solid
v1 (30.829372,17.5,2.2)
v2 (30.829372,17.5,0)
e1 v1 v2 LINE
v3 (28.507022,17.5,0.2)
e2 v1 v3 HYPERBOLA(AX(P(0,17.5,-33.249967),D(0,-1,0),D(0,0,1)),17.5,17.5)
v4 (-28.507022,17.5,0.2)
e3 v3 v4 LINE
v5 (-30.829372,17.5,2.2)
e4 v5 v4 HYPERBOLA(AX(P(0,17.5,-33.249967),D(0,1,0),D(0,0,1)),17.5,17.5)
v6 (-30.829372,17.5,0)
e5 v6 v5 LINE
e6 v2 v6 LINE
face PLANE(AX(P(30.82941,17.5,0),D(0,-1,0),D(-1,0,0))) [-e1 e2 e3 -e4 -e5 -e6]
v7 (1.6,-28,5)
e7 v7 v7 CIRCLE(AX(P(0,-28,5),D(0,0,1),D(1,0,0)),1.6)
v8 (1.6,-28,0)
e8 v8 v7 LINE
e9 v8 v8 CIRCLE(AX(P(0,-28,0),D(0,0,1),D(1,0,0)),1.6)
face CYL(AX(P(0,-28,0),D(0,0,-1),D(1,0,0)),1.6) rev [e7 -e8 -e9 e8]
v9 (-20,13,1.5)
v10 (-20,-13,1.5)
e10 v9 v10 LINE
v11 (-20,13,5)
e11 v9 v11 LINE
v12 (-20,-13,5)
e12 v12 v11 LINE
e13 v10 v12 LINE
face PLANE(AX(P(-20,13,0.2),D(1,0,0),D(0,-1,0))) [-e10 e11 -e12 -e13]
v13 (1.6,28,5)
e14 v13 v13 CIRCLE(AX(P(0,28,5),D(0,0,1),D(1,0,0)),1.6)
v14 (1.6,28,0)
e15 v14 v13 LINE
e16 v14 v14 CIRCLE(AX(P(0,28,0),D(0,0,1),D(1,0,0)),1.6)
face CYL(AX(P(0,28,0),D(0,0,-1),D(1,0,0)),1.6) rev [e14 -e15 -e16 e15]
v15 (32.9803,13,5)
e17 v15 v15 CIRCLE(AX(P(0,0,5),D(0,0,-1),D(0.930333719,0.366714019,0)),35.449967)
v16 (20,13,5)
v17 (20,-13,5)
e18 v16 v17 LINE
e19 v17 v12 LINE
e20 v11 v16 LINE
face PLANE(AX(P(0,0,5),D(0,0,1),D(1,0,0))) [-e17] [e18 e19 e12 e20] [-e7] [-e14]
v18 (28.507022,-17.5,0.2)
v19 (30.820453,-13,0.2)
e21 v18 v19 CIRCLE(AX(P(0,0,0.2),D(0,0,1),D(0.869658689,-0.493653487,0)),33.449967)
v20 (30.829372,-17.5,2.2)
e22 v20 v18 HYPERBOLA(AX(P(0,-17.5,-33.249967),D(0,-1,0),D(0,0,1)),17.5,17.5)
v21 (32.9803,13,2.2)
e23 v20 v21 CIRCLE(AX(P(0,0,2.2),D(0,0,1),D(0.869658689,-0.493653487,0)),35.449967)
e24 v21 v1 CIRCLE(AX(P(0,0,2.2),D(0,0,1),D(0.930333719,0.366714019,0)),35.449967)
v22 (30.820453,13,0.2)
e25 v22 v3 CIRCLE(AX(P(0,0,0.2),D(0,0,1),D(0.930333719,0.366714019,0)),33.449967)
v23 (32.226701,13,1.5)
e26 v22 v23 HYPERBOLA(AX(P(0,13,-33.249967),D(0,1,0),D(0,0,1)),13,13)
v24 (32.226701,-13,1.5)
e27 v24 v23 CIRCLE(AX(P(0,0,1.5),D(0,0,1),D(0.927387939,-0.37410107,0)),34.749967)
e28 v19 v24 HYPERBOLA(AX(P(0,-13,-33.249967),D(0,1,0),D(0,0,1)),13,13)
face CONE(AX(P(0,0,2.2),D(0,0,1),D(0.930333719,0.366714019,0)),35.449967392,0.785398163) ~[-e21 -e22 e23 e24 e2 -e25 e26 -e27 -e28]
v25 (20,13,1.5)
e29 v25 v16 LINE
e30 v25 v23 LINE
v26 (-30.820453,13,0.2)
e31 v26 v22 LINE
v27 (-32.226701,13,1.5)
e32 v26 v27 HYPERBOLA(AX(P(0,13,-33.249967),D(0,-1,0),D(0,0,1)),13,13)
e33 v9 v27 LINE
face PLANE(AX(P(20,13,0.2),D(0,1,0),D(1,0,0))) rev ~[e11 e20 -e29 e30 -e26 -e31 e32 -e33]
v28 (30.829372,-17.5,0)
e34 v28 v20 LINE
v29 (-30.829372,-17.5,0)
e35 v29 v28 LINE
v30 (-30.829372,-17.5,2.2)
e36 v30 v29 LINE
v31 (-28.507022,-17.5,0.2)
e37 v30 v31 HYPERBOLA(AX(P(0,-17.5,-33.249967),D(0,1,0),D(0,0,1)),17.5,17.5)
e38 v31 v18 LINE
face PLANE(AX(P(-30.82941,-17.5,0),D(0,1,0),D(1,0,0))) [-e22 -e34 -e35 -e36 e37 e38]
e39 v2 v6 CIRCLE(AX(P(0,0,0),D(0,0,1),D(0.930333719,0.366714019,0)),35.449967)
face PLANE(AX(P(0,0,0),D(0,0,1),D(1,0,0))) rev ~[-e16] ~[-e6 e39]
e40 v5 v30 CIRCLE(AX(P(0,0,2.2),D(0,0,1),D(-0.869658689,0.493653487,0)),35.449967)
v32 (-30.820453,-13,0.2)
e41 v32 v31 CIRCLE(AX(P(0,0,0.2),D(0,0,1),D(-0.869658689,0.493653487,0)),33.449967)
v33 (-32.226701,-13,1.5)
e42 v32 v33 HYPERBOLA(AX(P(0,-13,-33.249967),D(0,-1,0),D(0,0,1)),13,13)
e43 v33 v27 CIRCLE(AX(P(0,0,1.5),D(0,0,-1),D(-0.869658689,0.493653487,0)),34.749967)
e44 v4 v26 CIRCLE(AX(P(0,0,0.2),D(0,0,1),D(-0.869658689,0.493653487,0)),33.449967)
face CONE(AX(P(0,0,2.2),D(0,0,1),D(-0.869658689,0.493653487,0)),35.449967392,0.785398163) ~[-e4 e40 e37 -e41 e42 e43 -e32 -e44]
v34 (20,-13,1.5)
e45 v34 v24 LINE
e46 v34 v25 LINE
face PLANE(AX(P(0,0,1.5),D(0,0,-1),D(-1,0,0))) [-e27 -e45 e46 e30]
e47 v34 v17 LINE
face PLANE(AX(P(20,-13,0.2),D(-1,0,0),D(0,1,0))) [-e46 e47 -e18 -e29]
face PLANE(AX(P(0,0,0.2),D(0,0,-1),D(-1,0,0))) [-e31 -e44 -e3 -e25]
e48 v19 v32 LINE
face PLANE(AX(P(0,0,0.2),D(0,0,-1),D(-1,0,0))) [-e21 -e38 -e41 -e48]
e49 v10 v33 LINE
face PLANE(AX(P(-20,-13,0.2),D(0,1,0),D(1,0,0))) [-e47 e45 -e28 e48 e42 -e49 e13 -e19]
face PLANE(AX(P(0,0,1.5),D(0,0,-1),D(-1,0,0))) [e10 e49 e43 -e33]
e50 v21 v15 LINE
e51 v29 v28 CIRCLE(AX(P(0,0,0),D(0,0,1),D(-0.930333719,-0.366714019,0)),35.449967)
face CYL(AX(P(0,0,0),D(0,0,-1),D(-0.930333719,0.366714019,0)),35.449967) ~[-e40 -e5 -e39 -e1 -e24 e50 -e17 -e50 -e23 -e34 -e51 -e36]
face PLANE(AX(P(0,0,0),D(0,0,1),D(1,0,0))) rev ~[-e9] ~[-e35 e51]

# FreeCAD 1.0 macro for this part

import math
import FreeCAD as App
import Part
import Sketcher
Q = App.Units.Quantity


def edges_at(feature, points):
    """Names of the edges that pass closest to the given points."""
    edges = feature.Shape.Edges
    near = lambda p: min(range(len(edges)), key=lambda i: edges[i].distToShape(Part.Vertex(*p))[0])
    return sorted({f"Edge{near(p) + 1}" for p in points})

doc = App.newDocument("Part")
body = doc.addObject("PartDesign::Body", "Body")

sketch1 = doc.addObject("Sketcher::SketchObject", "Sketch")
body.addObject(sketch1)
sketch1.AttachmentSupport = (doc.XY_Plane, [""])
sketch1.MapMode = "FlatFace"
sketch1.addGeometry([
    Part.Circle(App.Vector(0, 0, 0), App.Vector(0, 0, 1), 35.4),
    Part.Circle(App.Vector(0, -28, 0), App.Vector(0, 0, 1), 1.6),
    Part.Circle(App.Vector(0, 28, 0), App.Vector(0, 0, 1), 1.6),
], False)
sketch1.addConstraint([
    Sketcher.Constraint("Coincident", 0, 3, -1, 1),
    Sketcher.Constraint("Equal", 1, 2),
    Sketcher.Constraint("Symmetric", 1, 3, 2, 3, -1, 1),
    Sketcher.Constraint("PointOnObject", 1, 3, -2),
    Sketcher.Constraint("Diameter", 0, Q("70.9 mm")),
    Sketcher.Constraint("Diameter", 1, Q("3.2 mm")),
    Sketcher.Constraint("DistanceY", 1, 3, -1, 1, Q("28 mm")),
])
pad1 = doc.addObject("PartDesign::Pad", "Pad")
body.addObject(pad1)
pad1.Profile = sketch1
pad1.Length = 5

sketch2 = doc.addObject("Sketcher::SketchObject", "Sketch001")
body.addObject(sketch2)
sketch2.AttachmentSupport = (doc.XY_Plane, [""])
sketch2.MapMode = "FlatFace"
sketch2.addGeometry([
    Part.LineSegment(App.Vector(-31, 18, 0), App.Vector(31, 18, 0)),
    Part.ArcOfCircle(Part.Circle(App.Vector(0, 0, 0), App.Vector(0, 0, 1), 35), math.radians(-30), math.radians(30)),
    Part.LineSegment(App.Vector(31, -18, 0), App.Vector(-31, -18, 0)),
    Part.ArcOfCircle(Part.Circle(App.Vector(0, 0, 0), App.Vector(0, 0, 1), 35), math.radians(150), math.radians(210)),
], False)
sketch2.addConstraint([
    Sketcher.Constraint("Coincident", 0, 2, 1, 2),
    Sketcher.Constraint("Coincident", 1, 1, 2, 1),
    Sketcher.Constraint("Coincident", 2, 2, 3, 2),
    Sketcher.Constraint("Coincident", 3, 1, 0, 1),
    Sketcher.Constraint("Horizontal", 0),
    Sketcher.Constraint("Horizontal", 2),
    Sketcher.Constraint("Coincident", 1, 3, -1, 1),
    Sketcher.Constraint("Coincident", 3, 3, -1, 1),
    Sketcher.Constraint("Equal", 1, 3),
    Sketcher.Constraint("Vertical", 0, 2, 1, 1),
    Sketcher.Constraint("DistanceY", 1, 1, 0, 2, Q("35 mm")),
    Sketcher.Constraint("Radius", 1, Q("35.45 mm")),
])
pocket1 = doc.addObject("PartDesign::Pocket", "Pocket")
body.addObject(pocket1)
pocket1.Profile = sketch2
pocket1.Length = 0.2
pocket1.Reversed = True

sketch3 = doc.addObject("Sketcher::SketchObject", "Sketch002")
body.addObject(sketch3)
sketch3.AttachmentSupport = (doc.XY_Plane, [""])
sketch3.MapMode = "FlatFace"
sketch3.AttachmentOffset = App.Placement(App.Vector(0, 0, 0.2), App.Rotation())
sketch3.addGeometry([
    Part.LineSegment(App.Vector(20, 13, 0), App.Vector(20, -13, 0)),
    Part.LineSegment(App.Vector(20, -13, 0), App.Vector(-20, -13, 0)),
    Part.LineSegment(App.Vector(-20, -13, 0), App.Vector(-20, 13, 0)),
    Part.LineSegment(App.Vector(-20, 13, 0), App.Vector(20, 13, 0)),
], False)
sketch3.addConstraint([
    Sketcher.Constraint("Coincident", 0, 2, 1, 1),
    Sketcher.Constraint("Coincident", 1, 2, 2, 1),
    Sketcher.Constraint("Coincident", 2, 2, 3, 1),
    Sketcher.Constraint("Coincident", 3, 2, 0, 1),
    Sketcher.Constraint("Vertical", 0),
    Sketcher.Constraint("Horizontal", 1),
    Sketcher.Constraint("Vertical", 2),
    Sketcher.Constraint("Horizontal", 3),
    Sketcher.Constraint("Symmetric", 0, 2, 2, 2, -1, 1),
    Sketcher.Constraint("DistanceX", 1, 2, 1, 1, Q("40 mm")),
    Sketcher.Constraint("DistanceY", 0, 2, 0, 1, Q("26 mm")),
])
pocket2 = doc.addObject("PartDesign::Pocket", "Pocket001")
body.addObject(pocket2)
pocket2.Profile = sketch3
pocket2.Type = "ThroughAll"
pocket2.Reversed = True
doc.recompute()

chamfer = doc.addObject("PartDesign::Chamfer", "Chamfer")
body.addObject(chamfer)
chamfer.Base = (pocket2, edges_at(pocket2, [(-35.45, 0, 0.2), (35.362, -2.494, 0.2)]))
chamfer.Size = 2

sketch4 = doc.addObject("Sketcher::SketchObject", "Sketch003")
body.addObject(sketch4)
sketch4.AttachmentSupport = (doc.XY_Plane, [""])
sketch4.MapMode = "FlatFace"
sketch4.AttachmentOffset = App.Placement(App.Vector(0, 0, 0.2), App.Rotation())
sketch4.addGeometry([
    Part.LineSegment(App.Vector(20, -13, 0), App.Vector(20, 13, 0)),
    Part.LineSegment(App.Vector(20, 13, 0), App.Vector(33, 13, 0)),
    Part.ArcOfCircle(Part.Circle(App.Vector(0, 0, 0), App.Vector(0, 0, 1), 35), math.radians(-22), math.radians(22)),
    Part.LineSegment(App.Vector(33, -13, 0), App.Vector(20, -13, 0)),
    Part.LineSegment(App.Vector(-33, 13, 0), App.Vector(-20, 13, 0)),
    Part.LineSegment(App.Vector(-20, 13, 0), App.Vector(-20, -13, 0)),
    Part.LineSegment(App.Vector(-20, -13, 0), App.Vector(-33, -13, 0)),
    Part.ArcOfCircle(Part.Circle(App.Vector(0, 0, 0), App.Vector(0, 0, 1), 35), math.radians(158), math.radians(202)),
], False)
sketch4.addConstraint([
    Sketcher.Constraint("Coincident", 0, 2, 1, 1),
    Sketcher.Constraint("Coincident", 1, 2, 2, 2),
    Sketcher.Constraint("Coincident", 2, 1, 3, 1),
    Sketcher.Constraint("Coincident", 3, 2, 0, 1),
    Sketcher.Constraint("Coincident", 4, 2, 5, 1),
    Sketcher.Constraint("Coincident", 5, 2, 6, 1),
    Sketcher.Constraint("Coincident", 6, 2, 7, 2),
    Sketcher.Constraint("Coincident", 7, 1, 4, 1),
    Sketcher.Constraint("Vertical", 0),
    Sketcher.Constraint("Horizontal", 1),
    Sketcher.Constraint("Horizontal", 3),
    Sketcher.Constraint("Horizontal", 4),
    Sketcher.Constraint("Vertical", 5),
    Sketcher.Constraint("Horizontal", 6),
    Sketcher.Constraint("Coincident", 2, 3, -1, 1),
    Sketcher.Constraint("Coincident", 7, 3, -1, 1),
    Sketcher.Constraint("Equal", 2, 7),
    Sketcher.Constraint("Symmetric", 3, 2, 4, 2, -1, 1),
    Sketcher.Constraint("Horizontal", 1, 2, 4, 2),
    Sketcher.Constraint("Horizontal", 3, 2, 5, 2),
    Sketcher.Constraint("DistanceY", 0, 1, 0, 2, Q("26 mm")),
    Sketcher.Constraint("Radius", 2, Q("35.45 mm")),
    Sketcher.Constraint("DistanceX", -1, 1, 0, 2, Q("20 mm")),
])
pocket3 = doc.addObject("PartDesign::Pocket", "Pocket002")
body.addObject(pocket3)
pocket3.Profile = sketch4
pocket3.Length = 1.3
pocket3.Reversed = True

doc.recompute()
